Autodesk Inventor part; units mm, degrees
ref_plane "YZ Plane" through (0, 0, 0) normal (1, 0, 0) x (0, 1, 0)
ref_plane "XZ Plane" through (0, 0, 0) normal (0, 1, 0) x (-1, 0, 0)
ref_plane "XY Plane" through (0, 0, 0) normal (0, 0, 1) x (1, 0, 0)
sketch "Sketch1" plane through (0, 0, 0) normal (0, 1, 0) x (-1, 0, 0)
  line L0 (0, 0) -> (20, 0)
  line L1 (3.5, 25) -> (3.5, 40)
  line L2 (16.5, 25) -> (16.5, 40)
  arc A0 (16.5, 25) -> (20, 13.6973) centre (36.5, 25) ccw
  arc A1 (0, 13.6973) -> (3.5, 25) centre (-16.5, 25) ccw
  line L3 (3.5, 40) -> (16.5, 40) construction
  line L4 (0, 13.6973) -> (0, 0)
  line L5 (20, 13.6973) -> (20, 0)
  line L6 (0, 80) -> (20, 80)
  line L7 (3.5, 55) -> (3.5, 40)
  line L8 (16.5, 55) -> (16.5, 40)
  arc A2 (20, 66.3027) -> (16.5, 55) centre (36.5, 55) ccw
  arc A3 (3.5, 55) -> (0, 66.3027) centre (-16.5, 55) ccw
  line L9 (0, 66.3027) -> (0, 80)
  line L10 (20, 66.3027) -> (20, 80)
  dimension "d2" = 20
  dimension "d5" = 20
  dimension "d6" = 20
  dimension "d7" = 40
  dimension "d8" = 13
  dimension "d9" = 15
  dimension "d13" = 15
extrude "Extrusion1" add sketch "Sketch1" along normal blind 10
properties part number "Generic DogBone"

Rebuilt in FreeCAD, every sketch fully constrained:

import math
import FreeCAD as App
import Part
import Sketcher
from FreeCAD import Vector
Q = App.Units.Quantity

doc = App.newDocument("Part")
body = doc.addObject("PartDesign::Body", "Body")

sketch1 = body.newObject("Sketcher::SketchObject", "Sketch")
sketch1.AttachmentSupport = (doc.getObject("XZ_Plane"), [""])
sketch1.MapMode = "FlatFace"
sketch1.addGeometry([
    Part.LineSegment(Vector(0, 14, 0), Vector(0, 0, 0)),
    Part.LineSegment(Vector(0, 0, 0), Vector(-20, 0, 0)),
    Part.LineSegment(Vector(-20, 0, 0), Vector(-20, 14, 0)),
    Part.ArcOfCircle(Part.Circle(Vector(-36, 25, 0), Vector(0, 0, 1), 20), math.radians(-34), math.radians(0)),
    Part.LineSegment(Vector(-16, 25, 0), Vector(-16, 55, 0)),
    Part.ArcOfCircle(Part.Circle(Vector(-36, 55, 0), Vector(0, 0, 1), 20), math.radians(0), math.radians(34)),
    Part.LineSegment(Vector(-20, 66, 0), Vector(-20, 80, 0)),
    Part.LineSegment(Vector(-20, 80, 0), Vector(0, 80, 0)),
    Part.LineSegment(Vector(0, 80, 0), Vector(0, 66, 0)),
    Part.ArcOfCircle(Part.Circle(Vector(16, 55, 0), Vector(0, 0, 1), 20), math.radians(146), math.radians(180)),
    Part.LineSegment(Vector(-4, 55, 0), Vector(-4, 25, 0)),
    Part.ArcOfCircle(Part.Circle(Vector(16, 25, 0), Vector(0, 0, 1), 20), math.radians(180), math.radians(214)),
], False)
sketch1.addConstraint([
    Sketcher.Constraint("Coincident", 0, 2, 1, 1),
    Sketcher.Constraint("Coincident", 1, 2, 2, 1),
    Sketcher.Constraint("Coincident", 2, 2, 3, 1),
    Sketcher.Constraint("Tangent", 3, 2, 4, 1),
    Sketcher.Constraint("Tangent", 4, 2, 5, 1),
    Sketcher.Constraint("Coincident", 5, 2, 6, 1),
    Sketcher.Constraint("Coincident", 6, 2, 7, 1),
    Sketcher.Constraint("Coincident", 7, 2, 8, 1),
    Sketcher.Constraint("Coincident", 8, 2, 9, 1),
    Sketcher.Constraint("Tangent", 9, 2, 10, 1),
    Sketcher.Constraint("Tangent", 10, 2, 11, 1),
    Sketcher.Constraint("Coincident", 11, 2, 0, 1),
    Sketcher.Constraint("Vertical", 0),
    Sketcher.Constraint("Horizontal", 1),
    Sketcher.Constraint("Vertical", 2),
    Sketcher.Constraint("Vertical", 4),
    Sketcher.Constraint("Vertical", 6),
    Sketcher.Constraint("Horizontal", 7),
    Sketcher.Constraint("Vertical", 8),
    Sketcher.Constraint("Vertical", 10),
    Sketcher.Constraint("Coincident", 0, 2, -1, 1),
    Sketcher.Constraint("Equal", 3, 5),
    Sketcher.Constraint("Equal", 5, 9),
    Sketcher.Constraint("Equal", 9, 11),
    Sketcher.Constraint("PointOnObject", 7, 2, -2),
    Sketcher.Constraint("Horizontal", 5, 3, 9, 3),
    Sketcher.Constraint("Horizontal", 3, 3, 11, 3),
    Sketcher.Constraint("Horizontal", 5, 2, 8, 2),
    Sketcher.Constraint("Horizontal", 2, 2, 11, 2),
    Sketcher.Constraint("Equal", 2, 6),
    Sketcher.Constraint("Radius", 3, Q("20 mm")),
    Sketcher.Constraint("DistanceX", 1, 2, 1, 1, Q("20 mm")),
    Sketcher.Constraint("DistanceX", 4, 2, 9, 2, Q("13 mm")),
    Sketcher.Constraint("DistanceY", 4, 1, 4, 2, Q("30 mm")),
    Sketcher.Constraint("DistanceY", -1, 1, 3, 3, Q("25 mm")),
])
pad1 = body.newObject("PartDesign::Pad", "Pad")
pad1.Profile = sketch1
pad1.Length = 10
pad1.Reversed = True

doc.recompute()
